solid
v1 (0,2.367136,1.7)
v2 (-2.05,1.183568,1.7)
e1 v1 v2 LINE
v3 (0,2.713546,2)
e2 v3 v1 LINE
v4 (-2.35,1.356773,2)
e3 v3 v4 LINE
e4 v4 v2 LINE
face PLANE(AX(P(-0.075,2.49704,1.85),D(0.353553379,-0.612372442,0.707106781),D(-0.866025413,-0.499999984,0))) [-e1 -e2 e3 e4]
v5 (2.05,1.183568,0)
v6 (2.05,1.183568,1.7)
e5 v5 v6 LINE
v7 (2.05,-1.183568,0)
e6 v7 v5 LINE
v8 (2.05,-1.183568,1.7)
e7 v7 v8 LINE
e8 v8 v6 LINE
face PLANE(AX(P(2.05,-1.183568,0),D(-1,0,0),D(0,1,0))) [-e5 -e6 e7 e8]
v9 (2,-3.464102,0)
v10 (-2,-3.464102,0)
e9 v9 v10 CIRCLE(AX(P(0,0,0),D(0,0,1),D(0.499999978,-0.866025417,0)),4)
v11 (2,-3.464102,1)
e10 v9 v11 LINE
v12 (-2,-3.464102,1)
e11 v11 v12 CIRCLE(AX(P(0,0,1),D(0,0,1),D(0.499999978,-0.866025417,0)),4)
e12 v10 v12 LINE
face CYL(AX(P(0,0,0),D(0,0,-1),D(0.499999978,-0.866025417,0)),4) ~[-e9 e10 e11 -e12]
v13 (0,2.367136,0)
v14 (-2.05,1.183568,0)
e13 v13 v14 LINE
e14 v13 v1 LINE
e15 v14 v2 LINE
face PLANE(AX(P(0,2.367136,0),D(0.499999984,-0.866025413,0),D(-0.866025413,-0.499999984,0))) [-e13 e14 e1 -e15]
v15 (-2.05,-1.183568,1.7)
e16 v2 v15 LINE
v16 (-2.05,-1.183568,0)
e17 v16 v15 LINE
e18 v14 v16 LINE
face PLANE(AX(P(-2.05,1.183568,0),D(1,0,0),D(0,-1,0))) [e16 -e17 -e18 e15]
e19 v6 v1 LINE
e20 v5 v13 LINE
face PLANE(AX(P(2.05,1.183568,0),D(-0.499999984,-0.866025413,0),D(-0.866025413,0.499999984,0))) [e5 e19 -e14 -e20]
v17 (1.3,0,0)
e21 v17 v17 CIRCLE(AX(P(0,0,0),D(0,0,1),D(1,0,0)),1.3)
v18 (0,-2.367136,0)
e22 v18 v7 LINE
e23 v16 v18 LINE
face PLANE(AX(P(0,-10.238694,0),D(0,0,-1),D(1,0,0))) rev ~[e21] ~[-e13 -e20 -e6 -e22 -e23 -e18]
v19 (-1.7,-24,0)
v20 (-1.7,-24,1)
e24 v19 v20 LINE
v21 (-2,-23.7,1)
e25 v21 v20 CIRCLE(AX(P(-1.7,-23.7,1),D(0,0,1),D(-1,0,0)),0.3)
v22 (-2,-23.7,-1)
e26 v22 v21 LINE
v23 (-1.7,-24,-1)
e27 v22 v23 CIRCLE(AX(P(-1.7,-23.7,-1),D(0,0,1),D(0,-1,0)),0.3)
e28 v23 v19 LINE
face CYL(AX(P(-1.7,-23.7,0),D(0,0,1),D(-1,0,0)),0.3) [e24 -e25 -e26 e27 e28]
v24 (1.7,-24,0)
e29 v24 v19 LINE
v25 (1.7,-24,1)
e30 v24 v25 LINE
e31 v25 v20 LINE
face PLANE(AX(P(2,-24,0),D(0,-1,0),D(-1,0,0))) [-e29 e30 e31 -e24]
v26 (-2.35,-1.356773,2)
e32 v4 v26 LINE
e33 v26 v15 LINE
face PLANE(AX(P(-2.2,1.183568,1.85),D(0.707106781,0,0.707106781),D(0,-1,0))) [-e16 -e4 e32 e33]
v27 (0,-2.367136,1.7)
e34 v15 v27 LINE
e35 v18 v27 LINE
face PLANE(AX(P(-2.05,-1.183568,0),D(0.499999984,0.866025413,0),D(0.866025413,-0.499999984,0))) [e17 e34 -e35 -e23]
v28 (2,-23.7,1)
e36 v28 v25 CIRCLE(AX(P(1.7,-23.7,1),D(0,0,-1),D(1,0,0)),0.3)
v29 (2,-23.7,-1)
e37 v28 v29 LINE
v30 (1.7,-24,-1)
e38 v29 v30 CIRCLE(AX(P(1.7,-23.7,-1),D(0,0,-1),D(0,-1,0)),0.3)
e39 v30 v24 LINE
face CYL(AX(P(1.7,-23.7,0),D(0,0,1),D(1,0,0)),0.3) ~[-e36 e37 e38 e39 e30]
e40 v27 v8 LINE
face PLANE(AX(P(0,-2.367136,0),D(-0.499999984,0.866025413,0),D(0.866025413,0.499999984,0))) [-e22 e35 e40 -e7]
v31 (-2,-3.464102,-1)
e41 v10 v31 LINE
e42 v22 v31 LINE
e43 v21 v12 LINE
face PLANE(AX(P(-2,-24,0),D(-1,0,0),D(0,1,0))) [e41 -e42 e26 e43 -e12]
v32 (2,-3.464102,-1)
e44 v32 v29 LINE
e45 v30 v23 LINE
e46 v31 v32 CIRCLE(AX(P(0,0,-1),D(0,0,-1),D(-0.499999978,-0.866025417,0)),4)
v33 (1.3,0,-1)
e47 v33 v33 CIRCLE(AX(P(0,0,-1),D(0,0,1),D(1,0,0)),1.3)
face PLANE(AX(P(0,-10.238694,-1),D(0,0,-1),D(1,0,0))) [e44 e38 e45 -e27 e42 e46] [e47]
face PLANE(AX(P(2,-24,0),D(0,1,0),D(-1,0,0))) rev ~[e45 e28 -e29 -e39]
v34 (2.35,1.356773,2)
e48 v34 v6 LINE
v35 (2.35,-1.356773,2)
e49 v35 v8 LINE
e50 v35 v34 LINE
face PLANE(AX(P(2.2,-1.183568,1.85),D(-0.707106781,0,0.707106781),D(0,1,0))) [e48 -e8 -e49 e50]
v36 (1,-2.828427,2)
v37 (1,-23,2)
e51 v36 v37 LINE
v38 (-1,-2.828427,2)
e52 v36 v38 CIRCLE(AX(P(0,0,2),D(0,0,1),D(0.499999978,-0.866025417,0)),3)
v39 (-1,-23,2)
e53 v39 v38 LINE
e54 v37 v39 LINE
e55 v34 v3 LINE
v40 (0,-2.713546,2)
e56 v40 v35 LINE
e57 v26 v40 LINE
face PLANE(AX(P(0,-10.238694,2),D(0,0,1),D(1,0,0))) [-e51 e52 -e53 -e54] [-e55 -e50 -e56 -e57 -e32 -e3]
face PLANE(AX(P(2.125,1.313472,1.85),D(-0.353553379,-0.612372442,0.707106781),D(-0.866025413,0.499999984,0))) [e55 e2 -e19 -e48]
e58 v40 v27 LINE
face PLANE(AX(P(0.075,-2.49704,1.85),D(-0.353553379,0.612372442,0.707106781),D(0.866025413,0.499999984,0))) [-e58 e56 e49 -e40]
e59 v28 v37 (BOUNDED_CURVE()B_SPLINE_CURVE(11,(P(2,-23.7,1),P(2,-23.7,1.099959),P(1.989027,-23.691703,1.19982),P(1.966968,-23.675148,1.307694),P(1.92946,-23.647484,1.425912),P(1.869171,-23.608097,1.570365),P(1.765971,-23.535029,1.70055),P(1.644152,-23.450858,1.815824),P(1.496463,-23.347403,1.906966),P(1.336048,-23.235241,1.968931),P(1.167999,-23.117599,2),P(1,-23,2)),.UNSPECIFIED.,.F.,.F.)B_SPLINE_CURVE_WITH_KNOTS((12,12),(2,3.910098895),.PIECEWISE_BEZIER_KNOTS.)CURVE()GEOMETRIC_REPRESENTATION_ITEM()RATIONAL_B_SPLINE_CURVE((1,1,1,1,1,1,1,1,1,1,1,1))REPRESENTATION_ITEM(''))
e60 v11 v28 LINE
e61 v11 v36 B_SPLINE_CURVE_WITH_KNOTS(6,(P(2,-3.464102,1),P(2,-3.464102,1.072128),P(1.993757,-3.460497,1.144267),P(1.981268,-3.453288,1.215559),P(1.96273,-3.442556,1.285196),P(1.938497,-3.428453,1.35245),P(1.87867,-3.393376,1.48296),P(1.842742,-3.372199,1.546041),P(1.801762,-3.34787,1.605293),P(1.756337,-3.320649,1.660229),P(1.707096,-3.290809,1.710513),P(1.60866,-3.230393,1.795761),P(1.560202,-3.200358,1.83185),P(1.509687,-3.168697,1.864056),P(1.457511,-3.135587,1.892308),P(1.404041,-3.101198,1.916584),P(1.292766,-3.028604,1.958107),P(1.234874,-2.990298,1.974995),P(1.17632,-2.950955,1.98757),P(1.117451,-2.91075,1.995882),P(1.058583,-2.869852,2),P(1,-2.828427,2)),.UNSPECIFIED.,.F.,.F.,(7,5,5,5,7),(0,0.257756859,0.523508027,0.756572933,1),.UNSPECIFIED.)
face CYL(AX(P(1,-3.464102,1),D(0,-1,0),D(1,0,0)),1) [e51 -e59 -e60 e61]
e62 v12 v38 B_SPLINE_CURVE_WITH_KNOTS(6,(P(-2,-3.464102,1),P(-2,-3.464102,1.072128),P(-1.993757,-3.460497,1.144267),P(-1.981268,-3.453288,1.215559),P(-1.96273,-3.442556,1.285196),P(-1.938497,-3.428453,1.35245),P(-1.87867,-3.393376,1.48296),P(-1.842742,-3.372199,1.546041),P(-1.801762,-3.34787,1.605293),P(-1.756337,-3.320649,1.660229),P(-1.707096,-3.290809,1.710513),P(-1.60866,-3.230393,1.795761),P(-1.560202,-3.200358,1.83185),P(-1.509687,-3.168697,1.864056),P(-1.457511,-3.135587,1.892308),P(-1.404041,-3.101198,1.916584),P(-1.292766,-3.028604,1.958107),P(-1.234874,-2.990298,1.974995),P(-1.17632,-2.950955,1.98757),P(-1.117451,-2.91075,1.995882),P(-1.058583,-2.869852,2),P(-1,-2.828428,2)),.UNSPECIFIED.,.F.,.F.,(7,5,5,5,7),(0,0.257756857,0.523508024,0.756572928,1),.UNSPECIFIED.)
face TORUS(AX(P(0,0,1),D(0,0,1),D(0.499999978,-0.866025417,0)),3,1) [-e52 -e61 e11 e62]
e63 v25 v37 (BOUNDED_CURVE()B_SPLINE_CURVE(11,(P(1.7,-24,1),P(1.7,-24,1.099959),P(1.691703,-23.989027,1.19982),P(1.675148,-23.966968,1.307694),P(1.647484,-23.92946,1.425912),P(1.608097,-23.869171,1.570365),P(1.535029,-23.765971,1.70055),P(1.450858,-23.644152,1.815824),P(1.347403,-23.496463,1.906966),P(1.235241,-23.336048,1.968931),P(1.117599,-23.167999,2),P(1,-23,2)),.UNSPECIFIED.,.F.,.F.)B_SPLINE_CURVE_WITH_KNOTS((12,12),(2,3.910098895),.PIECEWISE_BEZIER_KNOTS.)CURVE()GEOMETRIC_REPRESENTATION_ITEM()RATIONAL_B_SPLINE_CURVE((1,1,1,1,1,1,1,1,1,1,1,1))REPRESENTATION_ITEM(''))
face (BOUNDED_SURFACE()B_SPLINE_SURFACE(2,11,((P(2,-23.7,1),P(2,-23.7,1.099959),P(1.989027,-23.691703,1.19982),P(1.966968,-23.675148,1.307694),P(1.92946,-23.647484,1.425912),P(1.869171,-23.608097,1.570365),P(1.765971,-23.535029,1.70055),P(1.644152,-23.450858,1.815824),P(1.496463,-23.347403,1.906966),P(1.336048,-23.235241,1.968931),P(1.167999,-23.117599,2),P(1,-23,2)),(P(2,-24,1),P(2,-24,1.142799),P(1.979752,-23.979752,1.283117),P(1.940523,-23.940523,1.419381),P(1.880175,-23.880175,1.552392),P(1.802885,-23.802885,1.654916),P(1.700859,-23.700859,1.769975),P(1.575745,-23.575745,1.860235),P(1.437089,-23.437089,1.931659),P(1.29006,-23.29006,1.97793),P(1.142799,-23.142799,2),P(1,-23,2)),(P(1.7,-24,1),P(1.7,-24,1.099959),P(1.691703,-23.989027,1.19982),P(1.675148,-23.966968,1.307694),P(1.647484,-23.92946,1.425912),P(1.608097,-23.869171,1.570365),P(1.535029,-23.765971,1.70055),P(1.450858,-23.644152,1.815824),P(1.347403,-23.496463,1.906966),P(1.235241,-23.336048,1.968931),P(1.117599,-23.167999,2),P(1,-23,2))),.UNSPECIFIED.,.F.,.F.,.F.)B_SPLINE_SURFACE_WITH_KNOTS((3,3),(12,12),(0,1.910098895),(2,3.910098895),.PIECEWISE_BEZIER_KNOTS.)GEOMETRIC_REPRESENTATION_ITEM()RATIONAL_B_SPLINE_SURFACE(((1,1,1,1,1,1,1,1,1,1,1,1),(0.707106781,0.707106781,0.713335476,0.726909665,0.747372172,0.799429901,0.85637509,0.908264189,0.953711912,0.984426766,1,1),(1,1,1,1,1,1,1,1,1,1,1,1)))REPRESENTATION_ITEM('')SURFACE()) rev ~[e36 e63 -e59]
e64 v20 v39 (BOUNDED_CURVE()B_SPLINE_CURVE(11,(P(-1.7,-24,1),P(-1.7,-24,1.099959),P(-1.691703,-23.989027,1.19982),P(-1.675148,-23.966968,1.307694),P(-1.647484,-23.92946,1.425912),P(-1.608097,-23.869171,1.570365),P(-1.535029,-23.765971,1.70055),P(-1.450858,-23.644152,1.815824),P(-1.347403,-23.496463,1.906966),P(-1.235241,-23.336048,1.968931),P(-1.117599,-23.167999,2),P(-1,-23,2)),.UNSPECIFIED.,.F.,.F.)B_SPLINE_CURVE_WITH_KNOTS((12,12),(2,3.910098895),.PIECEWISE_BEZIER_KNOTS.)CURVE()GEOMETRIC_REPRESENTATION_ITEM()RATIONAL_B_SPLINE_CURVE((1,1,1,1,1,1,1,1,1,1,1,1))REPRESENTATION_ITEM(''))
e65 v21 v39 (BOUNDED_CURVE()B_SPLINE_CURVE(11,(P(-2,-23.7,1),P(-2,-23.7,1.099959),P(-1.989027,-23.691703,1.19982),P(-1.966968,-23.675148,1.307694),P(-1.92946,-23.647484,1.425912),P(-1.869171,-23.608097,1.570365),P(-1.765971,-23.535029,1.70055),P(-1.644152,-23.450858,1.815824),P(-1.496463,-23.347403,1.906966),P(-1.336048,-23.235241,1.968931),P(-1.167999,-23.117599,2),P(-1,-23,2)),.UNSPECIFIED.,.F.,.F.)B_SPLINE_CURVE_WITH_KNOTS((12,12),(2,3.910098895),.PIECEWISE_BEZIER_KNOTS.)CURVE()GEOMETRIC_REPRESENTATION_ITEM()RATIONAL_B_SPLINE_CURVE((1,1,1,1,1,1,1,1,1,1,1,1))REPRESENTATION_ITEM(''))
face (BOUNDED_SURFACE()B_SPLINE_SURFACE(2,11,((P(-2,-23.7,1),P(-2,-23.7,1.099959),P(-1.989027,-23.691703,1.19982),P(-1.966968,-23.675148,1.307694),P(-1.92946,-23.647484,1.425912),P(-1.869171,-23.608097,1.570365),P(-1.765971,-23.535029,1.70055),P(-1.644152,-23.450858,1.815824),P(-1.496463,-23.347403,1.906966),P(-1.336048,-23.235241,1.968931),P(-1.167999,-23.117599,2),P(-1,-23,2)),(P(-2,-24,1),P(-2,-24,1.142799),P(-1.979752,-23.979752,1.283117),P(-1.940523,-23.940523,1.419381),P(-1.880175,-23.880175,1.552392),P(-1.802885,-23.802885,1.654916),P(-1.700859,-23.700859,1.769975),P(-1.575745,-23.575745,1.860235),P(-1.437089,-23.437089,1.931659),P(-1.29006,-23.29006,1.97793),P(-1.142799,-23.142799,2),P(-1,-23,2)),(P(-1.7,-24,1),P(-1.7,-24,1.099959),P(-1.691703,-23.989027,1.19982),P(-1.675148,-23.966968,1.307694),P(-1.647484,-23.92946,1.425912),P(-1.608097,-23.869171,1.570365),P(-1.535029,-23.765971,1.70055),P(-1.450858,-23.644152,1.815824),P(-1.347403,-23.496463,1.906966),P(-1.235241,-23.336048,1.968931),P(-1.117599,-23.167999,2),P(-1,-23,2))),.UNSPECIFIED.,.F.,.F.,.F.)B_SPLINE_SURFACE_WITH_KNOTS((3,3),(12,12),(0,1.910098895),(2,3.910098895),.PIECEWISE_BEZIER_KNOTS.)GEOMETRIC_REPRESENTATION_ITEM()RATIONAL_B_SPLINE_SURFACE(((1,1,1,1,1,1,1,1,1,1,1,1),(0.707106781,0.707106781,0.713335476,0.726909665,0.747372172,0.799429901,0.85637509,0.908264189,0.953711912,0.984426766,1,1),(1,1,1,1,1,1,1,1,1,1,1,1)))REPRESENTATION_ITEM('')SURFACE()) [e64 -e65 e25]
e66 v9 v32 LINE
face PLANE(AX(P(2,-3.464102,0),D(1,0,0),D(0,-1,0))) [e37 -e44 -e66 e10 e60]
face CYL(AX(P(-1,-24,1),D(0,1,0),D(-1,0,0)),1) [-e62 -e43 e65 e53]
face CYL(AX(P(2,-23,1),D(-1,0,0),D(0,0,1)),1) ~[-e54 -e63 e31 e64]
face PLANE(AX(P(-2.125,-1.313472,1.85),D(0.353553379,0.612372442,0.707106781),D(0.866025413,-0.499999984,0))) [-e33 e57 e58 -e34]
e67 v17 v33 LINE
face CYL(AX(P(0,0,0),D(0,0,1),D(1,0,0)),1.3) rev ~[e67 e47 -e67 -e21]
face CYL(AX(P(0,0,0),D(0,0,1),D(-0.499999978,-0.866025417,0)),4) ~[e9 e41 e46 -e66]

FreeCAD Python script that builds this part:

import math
import FreeCAD as App
import Part
import Sketcher
from FreeCAD import Vector
Q = App.Units.Quantity


def edges_at(feature, points):
    """Names of the edges that pass closest to the given points."""
    edges = feature.Shape.Edges
    near = lambda p: min(range(len(edges)), key=lambda i: edges[i].distToShape(Part.Vertex(*p))[0])
    return sorted({f"Edge{near(p) + 1}" for p in points})


def add_polygon(sketch, points):
    """Adds a closed chain of lines whose ends are joined by coincident constraints."""
    first, n = sketch.GeometryCount, len(points)
    for a, b in zip(points, points[1:] + points[:1]):
        sketch.addGeometry(Part.LineSegment(App.Vector(*a, 0), App.Vector(*b, 0)), False)
    for i in range(n):
        sketch.addConstraint(Sketcher.Constraint("Coincident", first + i, 2, first + (i + 1) % n, 1))

doc = App.newDocument("Part")
params = doc.addObject("Spreadsheet::Sheet", "Params")
for row, (alias, value) in enumerate([
    ("sketch1_radius", "4 mm"),
    ("sketch1_width", "4 mm"),
    ("pad1_length", "2 mm"),
    ("sketch2_radius", "4 mm"),
    ("sketch2_width", "4 mm"),
    ("pad2_length", "1 mm"),
    ("sketch3_diameter", "2.6 mm"),
    ("fillet_radius", "1 mm"),
    ("fillet2_radius", "0.3 mm"),
    ("fillet3_radius", "0.3 mm"),
    ("chamfer_size", "0.3 mm"),
], start=1):
    params.set(f"A{row}", alias)
    params.set(f"B{row}", "=" + value)
    params.setAlias(f"B{row}", alias)

body = doc.addObject("PartDesign::Body", "Body")

# Sketch on XY plane
sketch1 = doc.addObject("Sketcher::SketchObject", "Sketch")
body.addObject(sketch1)
sketch1.AttachmentSupport = (doc.XY_Plane, [""])
sketch1.MapMode = "FlatFace"
sketch1.addGeometry(Part.ArcOfCircle(Part.Circle(Vector(0, 0, 0), Vector(0, 0, 1), 4), math.radians(-60), math.radians(240)), False)  # 0
sketch1.addGeometry(Part.LineSegment(Vector(-2, -3.5, 0), Vector(-2, -24, 0)), False)  # 1
sketch1.addGeometry(Part.LineSegment(Vector(-2, -24, 0), Vector(2, -24, 0)), False)  # 2
sketch1.addGeometry(Part.LineSegment(Vector(2, -24, 0), Vector(2, -3.5, 0)), False)  # 3
add_polygon(sketch1, [(-2, 1.2), (0, 2.4), (2, 1.2), (2, -1.2), (0, -2.4), (-2, -1.2)])  # lines 4-9
sketch1.addConstraint(Sketcher.Constraint("Coincident", 0, 2, 1, 1))
sketch1.addConstraint(Sketcher.Constraint("Coincident", 1, 2, 2, 1))
sketch1.addConstraint(Sketcher.Constraint("Coincident", 2, 2, 3, 1))
sketch1.addConstraint(Sketcher.Constraint("Coincident", 3, 2, 0, 1))
sketch1.addConstraint(Sketcher.Constraint("Vertical", 1))
sketch1.addConstraint(Sketcher.Constraint("Horizontal", 2))
sketch1.addConstraint(Sketcher.Constraint("Vertical", 3))
sketch1.addConstraint(Sketcher.Constraint("Vertical", 6))
sketch1.addConstraint(Sketcher.Constraint("Vertical", 9))
sketch1.addConstraint(Sketcher.Constraint("Coincident", 0, 3, -1, 1))
sketch1.addConstraint(Sketcher.Constraint("Symmetric", 4, 2, 7, 2, -1, 1))
sketch1.addConstraint(Sketcher.Constraint("Symmetric", 5, 2, 8, 2, -1, 1))
sketch1.addConstraint(Sketcher.Constraint("PointOnObject", 4, 2, -2))
sketch1.addConstraint(Sketcher.Constraint("Parallel", 4, 7))
sketch1.addConstraint(Sketcher.Constraint("Horizontal", 0, 2, 3, 2))
sketch1.addConstraint(Sketcher.Constraint("Horizontal", 6, 2, 8, 2))
sketch1.addConstraint(Sketcher.Constraint("Radius", 0, 4.0))
sketch1.addConstraint(Sketcher.Constraint("DistanceX", 2, 1, 2, 2, 4.0))
sketch1.addConstraint(Sketcher.Constraint("Angle", 4, Q("29.999999 deg")))
sketch1.addConstraint(Sketcher.Constraint("DistanceY", 1, 2, -1, 1, 24.0))
sketch1.addConstraint(Sketcher.Constraint("DistanceX", 8, 2, 6, 2, 4.1))
sketch1.addConstraint(Sketcher.Constraint("DistanceY", 6, 2, 6, 1, 2.367136))
sketch1.setExpression("Constraints[22]", "Params.sketch1_radius")
sketch1.setExpression("Constraints[23]", "Params.sketch1_width")
pad1 = doc.addObject("PartDesign::Pad", "Pad")
body.addObject(pad1)
pad1.Profile = sketch1
pad1.setExpression("Length", "Params.pad1_length")

# Sketch on XY plane
sketch2 = doc.addObject("Sketcher::SketchObject", "Sketch001")
body.addObject(sketch2)
sketch2.AttachmentSupport = (doc.XY_Plane, [""])
sketch2.MapMode = "FlatFace"
sketch2.addGeometry(Part.ArcOfCircle(Part.Circle(Vector(0, 0, 0), Vector(0, 0, 1), 4), math.radians(-60), math.radians(240)), False)
sketch2.addGeometry(Part.LineSegment(Vector(2, -3.5, 0), Vector(2, -24, 0)), False)
sketch2.addGeometry(Part.LineSegment(Vector(2, -24, 0), Vector(-2, -24, 0)), False)
sketch2.addGeometry(Part.LineSegment(Vector(-2, -24, 0), Vector(-2, -3.5, 0)), False)
sketch2.addConstraint(Sketcher.Constraint("Coincident", 0, 1, 1, 1))
sketch2.addConstraint(Sketcher.Constraint("Coincident", 1, 2, 2, 1))
sketch2.addConstraint(Sketcher.Constraint("Coincident", 2, 2, 3, 1))
sketch2.addConstraint(Sketcher.Constraint("Coincident", 3, 2, 0, 2))
sketch2.addConstraint(Sketcher.Constraint("Vertical", 1))
sketch2.addConstraint(Sketcher.Constraint("Horizontal", 2))
sketch2.addConstraint(Sketcher.Constraint("Vertical", 3))
sketch2.addConstraint(Sketcher.Constraint("Coincident", 0, 3, -1, 1))
sketch2.addConstraint(Sketcher.Constraint("Horizontal", 0, 1, 3, 2))
sketch2.addConstraint(Sketcher.Constraint("Radius", 0, 4.0))
sketch2.addConstraint(Sketcher.Constraint("DistanceX", 2, 2, 2, 1, 4.0))
sketch2.addConstraint(Sketcher.Constraint("DistanceY", 1, 2, -1, 1, 24.0))
sketch2.setExpression("Constraints[9]", "Params.sketch2_radius")
sketch2.setExpression("Constraints[10]", "Params.sketch2_width")
pad2 = doc.addObject("PartDesign::Pad", "Pad001")
body.addObject(pad2)
pad2.Profile = sketch2
pad2.setExpression("Length", "Params.pad2_length")
pad2.Reversed = True

# Sketch on XY plane
sketch3 = doc.addObject("Sketcher::SketchObject", "Sketch002")
body.addObject(sketch3)
sketch3.AttachmentSupport = (doc.XY_Plane, [""])
sketch3.MapMode = "FlatFace"
sketch3.addGeometry(Part.Circle(Vector(0, 0, 0), Vector(0, 0, 1), 1.3), False)
sketch3.addConstraint(Sketcher.Constraint("Coincident", 0, 3, -1, 1))
sketch3.addConstraint(Sketcher.Constraint("Diameter", 0, 2.6))
sketch3.setExpression("Constraints[1]", "Params.sketch3_diameter")
pocket1 = doc.addObject("PartDesign::Pocket", "Pocket")
body.addObject(pocket1)
pocket1.Profile = sketch3
pocket1.Type = "ThroughAll"
doc.recompute()

fillet = doc.addObject("PartDesign::Fillet", "Fillet")
body.addObject(fillet)
fillet.Base = (pocket1, edges_at(pocket1, [
    (2, -13.732, 2),
    (0, -24, 2),
    (-2, -13.732, 2),
    (0, 4, 2),
]))
fillet.setExpression("Radius", "Params.fillet_radius")
doc.recompute()

fillet2 = doc.addObject("PartDesign::Fillet", "Fillet001")
body.addObject(fillet2)
fillet2.Base = (fillet, edges_at(fillet, [(2, -24, 0.5), (2, -24, -0.5)]))
fillet2.setExpression("Radius", "Params.fillet2_radius")
doc.recompute()

fillet3 = doc.addObject("PartDesign::Fillet", "Fillet002")
body.addObject(fillet3)
fillet3.Base = (fillet2, edges_at(fillet2, [(-2, -24, 0.5), (-2, -24, -0.5)]))
fillet3.setExpression("Radius", "Params.fillet3_radius")
doc.recompute()

chamfer = doc.addObject("PartDesign::Chamfer", "Chamfer")
body.addObject(chamfer)
chamfer.Base = (fillet3, edges_at(fillet3, [
    (-2.05, 0, 2),
    (-1.025, 1.775, 2),
    (1.025, 1.775, 2),
    (2.05, 0, 2),
    (1.025, -1.775, 2),
    (-1.025, -1.775, 2),
]))
chamfer.setExpression("Size", "Params.chamfer_size")

doc.recompute()
